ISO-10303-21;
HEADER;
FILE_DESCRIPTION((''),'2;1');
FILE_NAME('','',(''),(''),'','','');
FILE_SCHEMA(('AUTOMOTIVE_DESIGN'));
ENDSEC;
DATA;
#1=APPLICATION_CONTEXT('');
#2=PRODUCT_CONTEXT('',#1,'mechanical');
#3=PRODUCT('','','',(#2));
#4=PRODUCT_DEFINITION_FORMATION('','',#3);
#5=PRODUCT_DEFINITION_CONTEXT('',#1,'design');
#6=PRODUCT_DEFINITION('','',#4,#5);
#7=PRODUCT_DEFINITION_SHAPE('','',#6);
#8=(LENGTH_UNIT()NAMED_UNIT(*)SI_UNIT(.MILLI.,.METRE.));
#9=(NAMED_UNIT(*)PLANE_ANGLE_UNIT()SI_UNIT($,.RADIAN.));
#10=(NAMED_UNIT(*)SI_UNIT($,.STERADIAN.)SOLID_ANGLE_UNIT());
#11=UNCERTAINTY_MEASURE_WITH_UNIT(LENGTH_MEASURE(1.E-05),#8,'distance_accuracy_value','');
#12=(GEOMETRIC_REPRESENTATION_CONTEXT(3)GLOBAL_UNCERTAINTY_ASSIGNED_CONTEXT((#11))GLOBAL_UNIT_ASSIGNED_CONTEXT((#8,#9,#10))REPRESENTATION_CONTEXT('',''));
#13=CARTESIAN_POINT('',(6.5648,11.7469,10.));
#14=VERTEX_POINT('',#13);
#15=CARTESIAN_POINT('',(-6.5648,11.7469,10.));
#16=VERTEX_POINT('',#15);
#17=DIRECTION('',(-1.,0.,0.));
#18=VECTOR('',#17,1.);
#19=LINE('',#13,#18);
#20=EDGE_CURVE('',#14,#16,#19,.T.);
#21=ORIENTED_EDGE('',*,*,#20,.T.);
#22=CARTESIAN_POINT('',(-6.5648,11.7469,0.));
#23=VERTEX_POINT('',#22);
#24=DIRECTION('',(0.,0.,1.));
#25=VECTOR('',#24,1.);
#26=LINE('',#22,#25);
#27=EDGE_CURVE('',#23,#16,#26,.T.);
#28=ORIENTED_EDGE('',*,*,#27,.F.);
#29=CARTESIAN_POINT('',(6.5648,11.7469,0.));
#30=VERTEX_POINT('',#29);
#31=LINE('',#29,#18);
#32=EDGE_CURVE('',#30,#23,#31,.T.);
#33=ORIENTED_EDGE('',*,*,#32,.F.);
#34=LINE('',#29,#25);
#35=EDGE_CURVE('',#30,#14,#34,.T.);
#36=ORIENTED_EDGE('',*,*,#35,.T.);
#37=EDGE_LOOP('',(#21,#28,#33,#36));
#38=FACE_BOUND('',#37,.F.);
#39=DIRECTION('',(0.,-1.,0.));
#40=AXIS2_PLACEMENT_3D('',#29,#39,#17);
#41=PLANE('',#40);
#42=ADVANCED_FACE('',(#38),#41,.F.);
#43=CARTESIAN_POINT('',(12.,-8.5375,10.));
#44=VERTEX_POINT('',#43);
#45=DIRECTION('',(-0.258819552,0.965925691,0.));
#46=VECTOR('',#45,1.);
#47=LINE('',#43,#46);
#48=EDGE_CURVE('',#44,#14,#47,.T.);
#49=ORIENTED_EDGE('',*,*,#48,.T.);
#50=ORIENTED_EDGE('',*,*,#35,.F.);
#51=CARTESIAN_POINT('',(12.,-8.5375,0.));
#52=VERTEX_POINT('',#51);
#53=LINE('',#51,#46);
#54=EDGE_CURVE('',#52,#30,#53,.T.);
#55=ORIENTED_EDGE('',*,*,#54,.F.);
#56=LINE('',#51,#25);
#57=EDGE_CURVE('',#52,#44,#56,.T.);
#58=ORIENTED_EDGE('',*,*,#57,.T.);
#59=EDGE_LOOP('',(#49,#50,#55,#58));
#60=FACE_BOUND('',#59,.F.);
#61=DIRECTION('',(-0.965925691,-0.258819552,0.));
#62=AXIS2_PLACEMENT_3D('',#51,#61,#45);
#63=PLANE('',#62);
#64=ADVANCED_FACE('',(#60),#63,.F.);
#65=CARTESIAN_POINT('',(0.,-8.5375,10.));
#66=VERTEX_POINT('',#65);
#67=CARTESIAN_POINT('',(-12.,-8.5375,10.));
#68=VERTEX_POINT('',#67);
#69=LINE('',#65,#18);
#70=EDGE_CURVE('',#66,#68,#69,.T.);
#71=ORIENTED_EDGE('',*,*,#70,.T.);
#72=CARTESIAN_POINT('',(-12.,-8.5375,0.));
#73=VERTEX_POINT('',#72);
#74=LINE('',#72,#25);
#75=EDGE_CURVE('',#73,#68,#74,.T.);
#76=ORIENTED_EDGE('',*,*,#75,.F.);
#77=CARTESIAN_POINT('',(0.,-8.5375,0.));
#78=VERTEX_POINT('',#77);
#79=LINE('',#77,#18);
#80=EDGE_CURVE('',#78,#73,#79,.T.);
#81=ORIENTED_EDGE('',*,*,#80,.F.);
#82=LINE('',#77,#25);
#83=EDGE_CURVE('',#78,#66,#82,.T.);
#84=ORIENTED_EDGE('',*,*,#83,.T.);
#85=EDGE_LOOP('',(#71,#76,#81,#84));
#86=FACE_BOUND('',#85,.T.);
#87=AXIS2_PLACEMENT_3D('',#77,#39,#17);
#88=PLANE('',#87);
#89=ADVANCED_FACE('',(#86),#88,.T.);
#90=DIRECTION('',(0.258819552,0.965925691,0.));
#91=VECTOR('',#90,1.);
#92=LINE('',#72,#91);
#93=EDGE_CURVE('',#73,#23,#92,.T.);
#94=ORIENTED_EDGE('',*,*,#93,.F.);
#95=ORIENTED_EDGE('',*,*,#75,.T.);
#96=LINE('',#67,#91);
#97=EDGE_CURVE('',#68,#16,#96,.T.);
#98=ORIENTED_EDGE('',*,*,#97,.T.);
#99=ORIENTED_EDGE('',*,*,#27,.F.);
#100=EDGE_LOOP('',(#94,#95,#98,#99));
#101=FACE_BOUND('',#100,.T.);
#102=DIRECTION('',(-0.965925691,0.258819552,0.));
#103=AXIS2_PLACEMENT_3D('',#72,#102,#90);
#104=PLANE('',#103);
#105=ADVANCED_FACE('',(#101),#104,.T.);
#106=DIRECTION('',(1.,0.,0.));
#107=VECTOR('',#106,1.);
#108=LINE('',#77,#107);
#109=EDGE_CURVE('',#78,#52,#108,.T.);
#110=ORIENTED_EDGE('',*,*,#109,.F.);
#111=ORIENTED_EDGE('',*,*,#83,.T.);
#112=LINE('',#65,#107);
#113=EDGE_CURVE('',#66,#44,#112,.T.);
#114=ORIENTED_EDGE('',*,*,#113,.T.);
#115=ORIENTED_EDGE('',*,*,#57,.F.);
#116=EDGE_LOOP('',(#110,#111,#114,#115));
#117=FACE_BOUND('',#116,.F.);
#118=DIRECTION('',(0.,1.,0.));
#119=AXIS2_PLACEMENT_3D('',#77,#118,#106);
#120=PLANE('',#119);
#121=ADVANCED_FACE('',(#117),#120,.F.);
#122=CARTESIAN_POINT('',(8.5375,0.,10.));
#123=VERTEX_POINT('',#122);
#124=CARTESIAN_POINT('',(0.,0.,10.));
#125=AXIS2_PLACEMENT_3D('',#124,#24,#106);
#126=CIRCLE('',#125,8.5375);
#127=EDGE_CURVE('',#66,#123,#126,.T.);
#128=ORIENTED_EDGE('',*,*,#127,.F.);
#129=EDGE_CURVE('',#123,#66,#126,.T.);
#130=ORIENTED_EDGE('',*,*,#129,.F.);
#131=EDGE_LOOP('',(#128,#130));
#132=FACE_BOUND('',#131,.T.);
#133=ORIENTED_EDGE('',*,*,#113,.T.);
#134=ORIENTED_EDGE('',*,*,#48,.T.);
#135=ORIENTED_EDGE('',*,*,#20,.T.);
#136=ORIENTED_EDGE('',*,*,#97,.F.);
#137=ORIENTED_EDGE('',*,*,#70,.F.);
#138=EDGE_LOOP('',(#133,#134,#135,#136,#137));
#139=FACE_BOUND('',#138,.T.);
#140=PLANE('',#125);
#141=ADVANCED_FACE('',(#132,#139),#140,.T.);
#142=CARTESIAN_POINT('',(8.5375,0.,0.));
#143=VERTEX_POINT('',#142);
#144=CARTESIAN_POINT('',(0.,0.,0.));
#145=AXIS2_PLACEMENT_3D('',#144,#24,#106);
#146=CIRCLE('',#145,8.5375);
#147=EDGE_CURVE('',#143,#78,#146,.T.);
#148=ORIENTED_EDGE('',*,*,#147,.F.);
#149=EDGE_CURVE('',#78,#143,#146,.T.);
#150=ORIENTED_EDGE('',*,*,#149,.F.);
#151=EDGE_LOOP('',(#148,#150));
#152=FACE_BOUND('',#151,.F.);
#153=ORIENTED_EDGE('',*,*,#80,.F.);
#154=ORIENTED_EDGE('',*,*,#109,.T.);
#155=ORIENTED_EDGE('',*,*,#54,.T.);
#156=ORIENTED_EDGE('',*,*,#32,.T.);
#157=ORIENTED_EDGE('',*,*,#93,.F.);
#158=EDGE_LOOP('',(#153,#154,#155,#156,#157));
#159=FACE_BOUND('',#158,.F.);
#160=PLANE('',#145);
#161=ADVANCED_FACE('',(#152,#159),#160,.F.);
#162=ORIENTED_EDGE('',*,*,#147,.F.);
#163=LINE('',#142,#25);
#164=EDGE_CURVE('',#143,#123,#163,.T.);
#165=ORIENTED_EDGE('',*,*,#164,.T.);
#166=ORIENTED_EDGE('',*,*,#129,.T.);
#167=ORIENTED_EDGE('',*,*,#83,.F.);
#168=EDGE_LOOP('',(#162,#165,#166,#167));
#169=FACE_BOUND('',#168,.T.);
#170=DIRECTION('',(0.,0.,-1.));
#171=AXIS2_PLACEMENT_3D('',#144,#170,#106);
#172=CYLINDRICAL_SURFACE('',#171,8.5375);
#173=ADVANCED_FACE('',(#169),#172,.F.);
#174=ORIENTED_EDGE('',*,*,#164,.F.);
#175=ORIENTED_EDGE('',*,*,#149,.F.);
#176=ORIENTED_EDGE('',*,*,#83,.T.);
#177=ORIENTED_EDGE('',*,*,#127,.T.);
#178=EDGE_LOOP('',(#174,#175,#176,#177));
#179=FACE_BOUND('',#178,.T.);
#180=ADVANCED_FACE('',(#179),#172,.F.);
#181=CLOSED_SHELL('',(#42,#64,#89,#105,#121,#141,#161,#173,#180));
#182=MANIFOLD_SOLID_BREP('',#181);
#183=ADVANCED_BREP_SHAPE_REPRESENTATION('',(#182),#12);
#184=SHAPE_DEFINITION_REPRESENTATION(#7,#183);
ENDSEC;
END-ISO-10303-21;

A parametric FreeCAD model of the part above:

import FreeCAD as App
import Part
import Sketcher
Q = App.Units.Quantity

doc = App.newDocument("Part")
body = doc.addObject("PartDesign::Body", "Body")

sketch1 = body.newObject("Sketcher::SketchObject", "Sketch")
sketch1.AttachmentSupport = (doc.getObject("XY_Plane"), [""])
sketch1.MapMode = "FlatFace"
sketch1.addGeometry([
    Part.LineSegment(App.Vector(-12, -9, 0), App.Vector(0, -9, 0)),
    Part.LineSegment(App.Vector(0, -9, 0), App.Vector(12, -9, 0)),
    Part.LineSegment(App.Vector(12, -9, 0), App.Vector(7, 12, 0)),
    Part.LineSegment(App.Vector(7, 12, 0), App.Vector(-7, 12, 0)),
    Part.LineSegment(App.Vector(-7, 12, 0), App.Vector(-12, -9, 0)),
    Part.Circle(App.Vector(0, 0, 0), App.Vector(0, 0, 1), 9),
], False)
sketch1.addConstraint([
    Sketcher.Constraint("Coincident", 0, 2, 1, 1),
    Sketcher.Constraint("Coincident", 1, 2, 2, 1),
    Sketcher.Constraint("Coincident", 2, 2, 3, 1),
    Sketcher.Constraint("Coincident", 3, 2, 4, 1),
    Sketcher.Constraint("Coincident", 4, 2, 0, 1),
    Sketcher.Constraint("Horizontal", 0),
    Sketcher.Constraint("Horizontal", 1),
    Sketcher.Constraint("Horizontal", 3),
    Sketcher.Constraint("Coincident", 5, 3, -1, 1),
    Sketcher.Constraint("PointOnObject", 0, 2, -2),
    Sketcher.Constraint("Equal", 0, 1),
    Sketcher.Constraint("Equal", 2, 4),
    Sketcher.Constraint("DistanceX", 0, 1, 0, 2, 12.0),
    Sketcher.Constraint("Angle", 2, Q("105 deg")),
    Sketcher.Constraint("Distance", 2, 21.0),
    Sketcher.Constraint("Diameter", 5, 17.075),
    Sketcher.Constraint("DistanceY", -1, 1, 2, 2, 11.747),
])
pad1 = body.newObject("PartDesign::Pad", "Pad")
pad1.Profile = sketch1
pad1.Length = 10

doc.recompute()
